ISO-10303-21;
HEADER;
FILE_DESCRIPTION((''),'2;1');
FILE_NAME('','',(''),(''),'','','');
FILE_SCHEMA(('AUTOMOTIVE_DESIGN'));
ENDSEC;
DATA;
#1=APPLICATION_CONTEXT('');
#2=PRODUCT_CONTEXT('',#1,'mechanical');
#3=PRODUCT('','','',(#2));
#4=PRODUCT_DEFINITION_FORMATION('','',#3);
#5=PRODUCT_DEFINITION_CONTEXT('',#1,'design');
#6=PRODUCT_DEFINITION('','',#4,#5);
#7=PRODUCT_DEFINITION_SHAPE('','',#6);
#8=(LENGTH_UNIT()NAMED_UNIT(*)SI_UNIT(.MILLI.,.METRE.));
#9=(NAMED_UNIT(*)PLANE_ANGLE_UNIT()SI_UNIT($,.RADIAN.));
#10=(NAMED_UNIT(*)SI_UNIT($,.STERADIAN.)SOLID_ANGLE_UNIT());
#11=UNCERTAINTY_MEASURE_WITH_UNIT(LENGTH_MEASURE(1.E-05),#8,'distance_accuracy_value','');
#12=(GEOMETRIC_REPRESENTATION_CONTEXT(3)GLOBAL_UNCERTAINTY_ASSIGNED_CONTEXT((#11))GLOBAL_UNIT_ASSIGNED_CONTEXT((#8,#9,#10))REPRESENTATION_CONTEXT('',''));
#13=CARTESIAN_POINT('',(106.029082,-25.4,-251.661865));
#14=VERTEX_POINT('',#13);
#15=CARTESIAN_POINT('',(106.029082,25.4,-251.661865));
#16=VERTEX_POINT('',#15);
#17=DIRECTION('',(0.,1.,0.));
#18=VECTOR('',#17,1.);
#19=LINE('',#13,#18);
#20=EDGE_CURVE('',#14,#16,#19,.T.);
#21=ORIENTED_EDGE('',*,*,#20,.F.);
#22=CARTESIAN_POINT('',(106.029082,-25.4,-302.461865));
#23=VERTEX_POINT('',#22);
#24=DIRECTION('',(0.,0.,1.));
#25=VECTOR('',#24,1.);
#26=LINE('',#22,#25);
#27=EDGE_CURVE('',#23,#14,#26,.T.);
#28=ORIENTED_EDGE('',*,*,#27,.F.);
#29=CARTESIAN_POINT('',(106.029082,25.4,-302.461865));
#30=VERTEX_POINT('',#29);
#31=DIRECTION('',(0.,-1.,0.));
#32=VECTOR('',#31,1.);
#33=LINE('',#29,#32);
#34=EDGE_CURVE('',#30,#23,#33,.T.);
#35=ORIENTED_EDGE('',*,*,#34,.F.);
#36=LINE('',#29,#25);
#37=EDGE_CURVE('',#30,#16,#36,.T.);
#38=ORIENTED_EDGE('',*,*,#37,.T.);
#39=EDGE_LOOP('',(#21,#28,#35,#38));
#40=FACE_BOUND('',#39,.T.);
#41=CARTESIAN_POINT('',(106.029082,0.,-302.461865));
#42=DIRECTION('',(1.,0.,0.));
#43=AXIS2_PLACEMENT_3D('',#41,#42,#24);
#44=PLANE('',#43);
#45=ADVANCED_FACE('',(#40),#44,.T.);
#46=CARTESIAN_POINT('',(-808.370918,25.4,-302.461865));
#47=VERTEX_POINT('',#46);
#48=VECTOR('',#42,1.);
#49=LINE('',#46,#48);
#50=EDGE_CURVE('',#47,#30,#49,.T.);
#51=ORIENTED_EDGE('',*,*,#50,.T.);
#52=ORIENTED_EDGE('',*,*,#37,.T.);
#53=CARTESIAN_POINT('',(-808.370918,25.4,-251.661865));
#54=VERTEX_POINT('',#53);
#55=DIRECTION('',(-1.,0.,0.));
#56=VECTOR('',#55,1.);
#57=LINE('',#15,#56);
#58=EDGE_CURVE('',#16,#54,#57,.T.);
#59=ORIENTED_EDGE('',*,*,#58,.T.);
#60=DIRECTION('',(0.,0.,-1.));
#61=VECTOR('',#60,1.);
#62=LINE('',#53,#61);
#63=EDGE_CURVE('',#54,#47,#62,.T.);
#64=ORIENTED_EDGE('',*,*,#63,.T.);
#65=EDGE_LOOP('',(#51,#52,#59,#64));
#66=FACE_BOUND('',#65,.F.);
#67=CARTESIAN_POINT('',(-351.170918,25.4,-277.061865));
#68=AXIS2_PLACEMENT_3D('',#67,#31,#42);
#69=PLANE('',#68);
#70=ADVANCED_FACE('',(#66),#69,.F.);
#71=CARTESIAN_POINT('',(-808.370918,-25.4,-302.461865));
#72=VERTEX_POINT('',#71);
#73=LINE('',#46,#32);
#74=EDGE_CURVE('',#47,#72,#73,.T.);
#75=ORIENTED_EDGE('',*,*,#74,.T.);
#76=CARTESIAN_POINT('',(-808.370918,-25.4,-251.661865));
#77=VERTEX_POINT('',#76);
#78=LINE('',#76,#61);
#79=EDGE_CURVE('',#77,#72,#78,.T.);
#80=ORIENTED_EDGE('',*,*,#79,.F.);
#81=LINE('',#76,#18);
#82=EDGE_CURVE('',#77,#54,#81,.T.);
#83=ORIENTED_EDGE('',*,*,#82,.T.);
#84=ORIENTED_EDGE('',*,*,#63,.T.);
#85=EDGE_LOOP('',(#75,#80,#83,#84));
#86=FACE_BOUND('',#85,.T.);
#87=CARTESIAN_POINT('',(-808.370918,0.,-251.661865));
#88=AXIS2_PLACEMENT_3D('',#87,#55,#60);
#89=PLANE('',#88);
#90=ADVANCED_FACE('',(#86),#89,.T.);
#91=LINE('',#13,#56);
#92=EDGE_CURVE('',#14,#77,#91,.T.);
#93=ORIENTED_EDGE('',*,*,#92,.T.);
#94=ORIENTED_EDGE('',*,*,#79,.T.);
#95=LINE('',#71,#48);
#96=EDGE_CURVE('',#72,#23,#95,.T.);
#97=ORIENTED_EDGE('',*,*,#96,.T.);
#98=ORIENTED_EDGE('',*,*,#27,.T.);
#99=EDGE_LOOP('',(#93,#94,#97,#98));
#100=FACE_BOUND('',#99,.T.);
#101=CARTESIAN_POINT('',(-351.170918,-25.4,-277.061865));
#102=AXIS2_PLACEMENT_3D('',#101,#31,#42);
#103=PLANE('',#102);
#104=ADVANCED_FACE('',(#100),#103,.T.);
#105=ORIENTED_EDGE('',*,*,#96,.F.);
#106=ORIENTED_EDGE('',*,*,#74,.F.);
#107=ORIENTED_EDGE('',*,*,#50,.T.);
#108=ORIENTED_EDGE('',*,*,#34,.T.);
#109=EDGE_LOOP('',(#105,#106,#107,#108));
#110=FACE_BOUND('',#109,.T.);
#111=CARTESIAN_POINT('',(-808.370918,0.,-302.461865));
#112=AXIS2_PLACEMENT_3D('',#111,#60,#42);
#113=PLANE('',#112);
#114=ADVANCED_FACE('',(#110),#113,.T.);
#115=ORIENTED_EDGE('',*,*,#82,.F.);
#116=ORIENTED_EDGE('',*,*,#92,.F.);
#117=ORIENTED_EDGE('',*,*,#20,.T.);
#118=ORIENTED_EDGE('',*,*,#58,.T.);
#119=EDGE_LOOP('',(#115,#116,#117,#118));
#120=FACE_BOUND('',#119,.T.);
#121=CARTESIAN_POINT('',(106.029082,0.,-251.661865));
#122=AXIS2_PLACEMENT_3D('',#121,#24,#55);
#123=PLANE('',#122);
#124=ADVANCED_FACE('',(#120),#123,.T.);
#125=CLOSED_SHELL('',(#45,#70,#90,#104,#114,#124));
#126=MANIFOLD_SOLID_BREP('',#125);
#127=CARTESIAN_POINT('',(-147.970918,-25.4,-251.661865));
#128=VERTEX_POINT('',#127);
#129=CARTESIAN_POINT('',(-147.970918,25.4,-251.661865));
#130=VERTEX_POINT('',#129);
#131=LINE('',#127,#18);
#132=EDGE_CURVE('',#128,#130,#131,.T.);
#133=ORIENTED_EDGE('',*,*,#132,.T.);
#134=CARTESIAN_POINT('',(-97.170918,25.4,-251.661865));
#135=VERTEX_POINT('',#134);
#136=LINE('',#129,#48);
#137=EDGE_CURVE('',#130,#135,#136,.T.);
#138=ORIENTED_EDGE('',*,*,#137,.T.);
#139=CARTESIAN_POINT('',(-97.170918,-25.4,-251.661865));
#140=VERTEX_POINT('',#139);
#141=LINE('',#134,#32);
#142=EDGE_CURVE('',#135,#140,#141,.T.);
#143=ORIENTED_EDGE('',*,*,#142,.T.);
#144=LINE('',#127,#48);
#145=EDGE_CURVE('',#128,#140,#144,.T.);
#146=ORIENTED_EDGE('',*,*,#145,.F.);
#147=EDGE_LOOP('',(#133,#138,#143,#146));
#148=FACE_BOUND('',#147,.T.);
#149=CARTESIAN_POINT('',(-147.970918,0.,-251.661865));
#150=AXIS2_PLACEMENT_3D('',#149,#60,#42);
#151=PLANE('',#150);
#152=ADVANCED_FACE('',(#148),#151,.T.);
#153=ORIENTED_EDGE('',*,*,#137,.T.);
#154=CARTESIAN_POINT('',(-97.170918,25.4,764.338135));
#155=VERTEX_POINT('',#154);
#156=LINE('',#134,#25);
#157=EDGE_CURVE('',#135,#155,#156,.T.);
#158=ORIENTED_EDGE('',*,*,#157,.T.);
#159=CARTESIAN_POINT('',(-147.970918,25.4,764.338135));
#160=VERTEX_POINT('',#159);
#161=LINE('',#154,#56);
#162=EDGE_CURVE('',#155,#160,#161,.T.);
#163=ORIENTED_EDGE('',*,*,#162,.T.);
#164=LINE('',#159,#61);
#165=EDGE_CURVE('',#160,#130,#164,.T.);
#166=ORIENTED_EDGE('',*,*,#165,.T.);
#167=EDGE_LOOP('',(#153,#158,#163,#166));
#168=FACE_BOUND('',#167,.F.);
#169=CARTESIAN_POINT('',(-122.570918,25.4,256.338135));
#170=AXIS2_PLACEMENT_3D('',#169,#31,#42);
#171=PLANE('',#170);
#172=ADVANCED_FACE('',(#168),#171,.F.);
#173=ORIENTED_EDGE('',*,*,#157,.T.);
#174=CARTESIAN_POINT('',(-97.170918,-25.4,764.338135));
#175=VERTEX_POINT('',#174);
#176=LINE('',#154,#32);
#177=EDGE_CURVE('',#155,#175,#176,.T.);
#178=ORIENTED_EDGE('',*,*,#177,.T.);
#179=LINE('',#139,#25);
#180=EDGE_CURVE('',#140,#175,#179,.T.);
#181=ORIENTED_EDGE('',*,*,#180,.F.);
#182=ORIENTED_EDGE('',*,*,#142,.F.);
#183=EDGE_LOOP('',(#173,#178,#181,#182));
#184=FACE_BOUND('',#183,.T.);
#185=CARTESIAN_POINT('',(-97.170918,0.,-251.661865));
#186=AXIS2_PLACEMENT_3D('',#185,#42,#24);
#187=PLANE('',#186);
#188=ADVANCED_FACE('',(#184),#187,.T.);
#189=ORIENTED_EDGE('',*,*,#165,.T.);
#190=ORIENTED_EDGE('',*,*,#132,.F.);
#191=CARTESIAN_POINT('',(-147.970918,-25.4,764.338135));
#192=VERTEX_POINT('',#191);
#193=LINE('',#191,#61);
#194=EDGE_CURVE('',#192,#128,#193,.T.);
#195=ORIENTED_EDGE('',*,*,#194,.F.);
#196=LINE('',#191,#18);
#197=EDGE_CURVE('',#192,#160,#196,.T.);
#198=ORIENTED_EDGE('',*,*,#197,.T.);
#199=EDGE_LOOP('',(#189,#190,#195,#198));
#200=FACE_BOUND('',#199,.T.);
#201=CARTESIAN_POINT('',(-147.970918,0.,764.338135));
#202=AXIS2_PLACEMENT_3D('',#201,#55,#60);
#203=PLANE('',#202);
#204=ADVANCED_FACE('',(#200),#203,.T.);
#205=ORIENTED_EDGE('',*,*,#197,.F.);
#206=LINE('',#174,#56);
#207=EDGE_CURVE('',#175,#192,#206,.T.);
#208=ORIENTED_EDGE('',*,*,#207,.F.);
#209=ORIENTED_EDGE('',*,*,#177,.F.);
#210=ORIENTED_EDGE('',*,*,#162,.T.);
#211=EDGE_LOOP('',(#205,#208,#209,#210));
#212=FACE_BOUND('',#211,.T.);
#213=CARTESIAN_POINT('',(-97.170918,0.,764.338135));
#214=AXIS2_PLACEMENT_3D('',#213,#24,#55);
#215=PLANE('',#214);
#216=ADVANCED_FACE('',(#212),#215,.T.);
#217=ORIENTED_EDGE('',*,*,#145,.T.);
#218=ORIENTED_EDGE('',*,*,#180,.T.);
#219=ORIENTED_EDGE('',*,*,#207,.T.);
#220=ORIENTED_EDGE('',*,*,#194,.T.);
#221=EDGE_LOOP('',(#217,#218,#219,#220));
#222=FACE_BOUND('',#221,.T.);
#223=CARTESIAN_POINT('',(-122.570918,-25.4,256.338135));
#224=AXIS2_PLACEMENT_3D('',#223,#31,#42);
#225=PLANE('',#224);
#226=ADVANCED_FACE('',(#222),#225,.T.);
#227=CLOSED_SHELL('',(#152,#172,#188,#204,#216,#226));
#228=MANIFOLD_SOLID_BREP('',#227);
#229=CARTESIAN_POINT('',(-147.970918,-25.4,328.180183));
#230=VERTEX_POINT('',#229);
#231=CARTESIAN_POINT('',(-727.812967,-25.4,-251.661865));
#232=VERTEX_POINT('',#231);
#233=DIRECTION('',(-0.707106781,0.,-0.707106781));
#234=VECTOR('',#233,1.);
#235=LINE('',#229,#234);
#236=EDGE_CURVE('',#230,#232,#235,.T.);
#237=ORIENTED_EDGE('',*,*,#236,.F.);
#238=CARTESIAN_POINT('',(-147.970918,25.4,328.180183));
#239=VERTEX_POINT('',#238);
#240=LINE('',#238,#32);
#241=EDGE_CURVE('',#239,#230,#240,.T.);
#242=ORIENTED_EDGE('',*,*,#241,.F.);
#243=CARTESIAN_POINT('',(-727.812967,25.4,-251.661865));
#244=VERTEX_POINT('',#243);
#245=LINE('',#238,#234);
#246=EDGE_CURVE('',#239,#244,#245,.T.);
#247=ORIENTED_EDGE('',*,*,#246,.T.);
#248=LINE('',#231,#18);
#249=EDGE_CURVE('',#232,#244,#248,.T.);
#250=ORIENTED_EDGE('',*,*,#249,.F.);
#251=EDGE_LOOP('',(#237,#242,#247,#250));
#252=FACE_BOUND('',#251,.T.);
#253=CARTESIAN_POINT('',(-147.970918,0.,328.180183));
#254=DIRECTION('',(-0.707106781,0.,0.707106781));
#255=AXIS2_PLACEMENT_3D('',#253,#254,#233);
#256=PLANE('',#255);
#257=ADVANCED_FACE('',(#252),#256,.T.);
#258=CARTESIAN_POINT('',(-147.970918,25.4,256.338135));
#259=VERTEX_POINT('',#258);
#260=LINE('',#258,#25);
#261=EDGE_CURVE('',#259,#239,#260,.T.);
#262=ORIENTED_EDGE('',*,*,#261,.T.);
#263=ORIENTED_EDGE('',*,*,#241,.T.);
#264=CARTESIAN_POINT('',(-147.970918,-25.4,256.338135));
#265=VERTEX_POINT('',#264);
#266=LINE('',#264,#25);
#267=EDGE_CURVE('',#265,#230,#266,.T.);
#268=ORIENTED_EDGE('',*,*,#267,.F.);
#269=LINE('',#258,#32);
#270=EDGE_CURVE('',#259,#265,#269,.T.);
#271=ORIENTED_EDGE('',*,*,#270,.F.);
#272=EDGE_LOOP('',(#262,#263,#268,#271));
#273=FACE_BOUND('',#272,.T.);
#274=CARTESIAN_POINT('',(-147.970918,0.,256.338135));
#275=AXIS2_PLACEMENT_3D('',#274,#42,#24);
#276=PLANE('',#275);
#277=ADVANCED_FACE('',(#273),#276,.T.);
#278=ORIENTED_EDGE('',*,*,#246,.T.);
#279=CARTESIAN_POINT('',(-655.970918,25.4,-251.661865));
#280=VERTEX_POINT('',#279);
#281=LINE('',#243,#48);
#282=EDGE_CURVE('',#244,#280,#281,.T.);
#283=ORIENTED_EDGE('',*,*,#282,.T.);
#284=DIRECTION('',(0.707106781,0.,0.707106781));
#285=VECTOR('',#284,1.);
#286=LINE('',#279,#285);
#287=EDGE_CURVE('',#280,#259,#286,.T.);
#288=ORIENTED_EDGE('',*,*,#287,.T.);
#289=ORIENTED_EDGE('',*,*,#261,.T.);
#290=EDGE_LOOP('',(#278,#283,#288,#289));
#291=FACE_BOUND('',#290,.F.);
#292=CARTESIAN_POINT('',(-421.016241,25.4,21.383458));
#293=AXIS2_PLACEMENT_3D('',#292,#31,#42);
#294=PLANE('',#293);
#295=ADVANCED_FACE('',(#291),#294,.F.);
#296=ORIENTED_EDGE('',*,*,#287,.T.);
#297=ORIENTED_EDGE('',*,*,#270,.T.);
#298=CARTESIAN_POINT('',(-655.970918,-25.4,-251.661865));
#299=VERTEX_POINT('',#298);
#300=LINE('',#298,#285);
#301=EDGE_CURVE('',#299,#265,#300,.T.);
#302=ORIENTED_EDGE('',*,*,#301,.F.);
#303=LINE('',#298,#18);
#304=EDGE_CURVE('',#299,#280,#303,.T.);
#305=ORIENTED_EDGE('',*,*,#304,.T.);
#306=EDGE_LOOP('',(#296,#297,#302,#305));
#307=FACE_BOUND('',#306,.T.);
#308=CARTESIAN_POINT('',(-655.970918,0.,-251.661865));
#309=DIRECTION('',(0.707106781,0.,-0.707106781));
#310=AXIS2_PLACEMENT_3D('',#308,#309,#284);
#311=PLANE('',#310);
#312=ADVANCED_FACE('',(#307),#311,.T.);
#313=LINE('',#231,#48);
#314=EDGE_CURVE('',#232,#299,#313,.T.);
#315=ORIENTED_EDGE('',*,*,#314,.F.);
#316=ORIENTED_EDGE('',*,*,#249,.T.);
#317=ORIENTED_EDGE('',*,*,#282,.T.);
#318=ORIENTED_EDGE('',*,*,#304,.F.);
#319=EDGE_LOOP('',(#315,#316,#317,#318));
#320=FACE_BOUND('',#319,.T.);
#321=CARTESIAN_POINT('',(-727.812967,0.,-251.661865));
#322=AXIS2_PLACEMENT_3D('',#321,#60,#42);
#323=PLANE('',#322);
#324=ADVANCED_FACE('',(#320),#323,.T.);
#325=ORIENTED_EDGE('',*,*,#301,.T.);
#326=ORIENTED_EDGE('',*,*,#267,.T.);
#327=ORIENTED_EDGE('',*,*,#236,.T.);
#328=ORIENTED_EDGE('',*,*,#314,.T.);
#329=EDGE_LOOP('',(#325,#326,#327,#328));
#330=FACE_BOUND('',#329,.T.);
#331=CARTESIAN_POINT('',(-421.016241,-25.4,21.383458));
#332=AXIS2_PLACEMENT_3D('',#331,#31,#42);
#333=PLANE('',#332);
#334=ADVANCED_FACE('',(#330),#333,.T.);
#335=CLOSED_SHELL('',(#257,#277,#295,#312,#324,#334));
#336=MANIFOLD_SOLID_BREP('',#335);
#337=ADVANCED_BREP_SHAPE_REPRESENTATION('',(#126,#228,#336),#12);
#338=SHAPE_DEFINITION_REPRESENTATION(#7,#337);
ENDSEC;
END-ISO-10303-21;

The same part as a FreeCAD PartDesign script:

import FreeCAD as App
import Part
import Sketcher

V = App.Vector
Q = App.Units.Quantity

doc = App.newDocument("Part")
body = doc.addObject("PartDesign::Body", "Body")

# Sketch on XZ plane
sketch1 = doc.addObject("Sketcher::SketchObject", "Sketch")
body.addObject(sketch1)
sketch1.AttachmentSupport = (doc.XZ_Plane, [""])
sketch1.MapMode = "FlatFace"
sketch1.addGeometry(Part.LineSegment(V(-148, -252, 0), V(-97, -252, 0)), False)
sketch1.addGeometry(Part.LineSegment(V(-97, -252, 0), V(-97, 764, 0)), False)
sketch1.addGeometry(Part.LineSegment(V(-97, 764, 0), V(-148, 764, 0)), False)
sketch1.addGeometry(Part.LineSegment(V(-148, 764, 0), V(-148, -252, 0)), False)
sketch1.addConstraint(Sketcher.Constraint("Coincident", 0, 2, 1, 1))
sketch1.addConstraint(Sketcher.Constraint("Coincident", 1, 2, 2, 1))
sketch1.addConstraint(Sketcher.Constraint("Coincident", 2, 2, 3, 1))
sketch1.addConstraint(Sketcher.Constraint("Coincident", 3, 2, 0, 1))
sketch1.addConstraint(Sketcher.Constraint("Horizontal", 0))
sketch1.addConstraint(Sketcher.Constraint("Vertical", 1))
sketch1.addConstraint(Sketcher.Constraint("Horizontal", 2))
sketch1.addConstraint(Sketcher.Constraint("Vertical", 3))
sketch1.addConstraint(Sketcher.Constraint("DistanceX", 0, 1, 0, 2, Q("2 in")))
sketch1.addConstraint(Sketcher.Constraint("DistanceY", 1, 1, 1, 2, Q("40 in")))
sketch1.addConstraint(Sketcher.Constraint("DistanceX", 0, 2, -1, 1, 97.170918))
sketch1.addConstraint(Sketcher.Constraint("DistanceY", 0, 2, -1, 1, 251.661865))
pad1 = doc.addObject("PartDesign::Pad", "Pad")
body.addObject(pad1)
pad1.Profile = sketch1
pad1.Length = Q("2 in")
pad1.Midplane = True
body2 = doc.addObject("PartDesign::Body", "Body001")

# Sketch on XZ plane
sketch2 = doc.addObject("Sketcher::SketchObject", "Sketch001")
body2.addObject(sketch2)
sketch2.AttachmentSupport = (doc.getObject("XZ_Plane001"), [""])
sketch2.MapMode = "FlatFace"
sketch2.addGeometry(Part.LineSegment(V(-808, -252, 0), V(-808, -302, 0)), False)
sketch2.addGeometry(Part.LineSegment(V(-808, -302, 0), V(106, -302, 0)), False)
sketch2.addGeometry(Part.LineSegment(V(106, -302, 0), V(106, -252, 0)), False)
sketch2.addGeometry(Part.LineSegment(V(106, -252, 0), V(-808, -252, 0)), False)
sketch2.addConstraint(Sketcher.Constraint("Coincident", 0, 2, 1, 1))
sketch2.addConstraint(Sketcher.Constraint("Coincident", 1, 2, 2, 1))
sketch2.addConstraint(Sketcher.Constraint("Coincident", 2, 2, 3, 1))
sketch2.addConstraint(Sketcher.Constraint("Coincident", 3, 2, 0, 1))
sketch2.addConstraint(Sketcher.Constraint("Vertical", 0))
sketch2.addConstraint(Sketcher.Constraint("Horizontal", 1))
sketch2.addConstraint(Sketcher.Constraint("Vertical", 2))
sketch2.addConstraint(Sketcher.Constraint("Horizontal", 3))
sketch2.addConstraint(Sketcher.Constraint("DistanceX", 1, 1, 1, 2, Q("36 in")))
sketch2.addConstraint(Sketcher.Constraint("DistanceY", 0, 2, 0, 1, Q("2 in")))
sketch2.addConstraint(Sketcher.Constraint("DistanceX", 0, 2, -1, 1, 808.370918))
sketch2.addConstraint(Sketcher.Constraint("DistanceY", 0, 2, -1, 1, 302.461865))
pad2 = doc.addObject("PartDesign::Pad", "Pad001")
body2.addObject(pad2)
pad2.Profile = sketch2
pad2.Length = Q("2 in")
pad2.Midplane = True
body3 = doc.addObject("PartDesign::Body", "Body002")

# Sketch on XZ plane
sketch3 = doc.addObject("Sketcher::SketchObject", "Sketch002")
body3.addObject(sketch3)
sketch3.AttachmentSupport = (doc.getObject("XZ_Plane002"), [""])
sketch3.MapMode = "FlatFace"
sketch3.addGeometry(Part.LineSegment(V(-656, -252, 0), V(-148, 256, 0)), False)
sketch3.addGeometry(Part.LineSegment(V(-148, 256, 0), V(-148, 328, 0)), False)
sketch3.addGeometry(Part.LineSegment(V(-148, 328, 0), V(-728, -252, 0)), False)
sketch3.addGeometry(Part.LineSegment(V(-728, -252, 0), V(-656, -252, 0)), False)
sketch3.addConstraint(Sketcher.Constraint("Coincident", 0, 2, 1, 1))
sketch3.addConstraint(Sketcher.Constraint("Coincident", 1, 2, 2, 1))
sketch3.addConstraint(Sketcher.Constraint("Coincident", 2, 2, 3, 1))
sketch3.addConstraint(Sketcher.Constraint("Coincident", 3, 2, 0, 1))
sketch3.addConstraint(Sketcher.Constraint("Vertical", 1))
sketch3.addConstraint(Sketcher.Constraint("Horizontal", 3))
sketch3.addConstraint(Sketcher.Constraint("Parallel", 0, 2))
sketch3.addConstraint(Sketcher.Constraint("Equal", 3, 1))
sketch3.addConstraint(Sketcher.Constraint("DistanceY", 2, 2, 0, 2, Q("20 in")))
sketch3.addConstraint(Sketcher.Constraint("DistanceX", 3, 1, 3, 2, 71.842049))
sketch3.addConstraint(Sketcher.Constraint("DistanceX", 0, 2, -1, 1, 147.970918))
sketch3.addConstraint(Sketcher.Constraint("DistanceY", -1, 1, 0, 2, 256.338135))
pad3 = doc.addObject("PartDesign::Pad", "Pad002")
body3.addObject(pad3)
pad3.Profile = sketch3
pad3.Length = Q("2 in")
pad3.Midplane = True

doc.recompute()
